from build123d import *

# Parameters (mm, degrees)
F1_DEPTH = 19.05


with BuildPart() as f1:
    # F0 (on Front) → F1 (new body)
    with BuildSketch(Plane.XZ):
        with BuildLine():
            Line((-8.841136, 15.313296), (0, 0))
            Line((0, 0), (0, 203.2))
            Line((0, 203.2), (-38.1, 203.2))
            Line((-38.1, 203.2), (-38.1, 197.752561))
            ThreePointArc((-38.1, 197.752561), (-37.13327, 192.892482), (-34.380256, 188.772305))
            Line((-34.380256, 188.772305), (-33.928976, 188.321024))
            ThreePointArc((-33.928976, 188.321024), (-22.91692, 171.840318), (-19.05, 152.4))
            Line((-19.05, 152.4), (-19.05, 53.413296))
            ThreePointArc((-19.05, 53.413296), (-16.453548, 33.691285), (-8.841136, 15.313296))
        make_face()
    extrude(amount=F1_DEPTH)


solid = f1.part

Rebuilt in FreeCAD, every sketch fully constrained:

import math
import FreeCAD as App
import Part
import Sketcher

V = App.Vector
Q = App.Units.Quantity

doc = App.newDocument("Part")
body = doc.addObject("PartDesign::Body", "Body")

sketch1 = body.newObject("Sketcher::SketchObject", "Sketch")
sketch1.AttachmentSupport = (doc.getObject("XZ_Plane"), [""])
sketch1.MapMode = "FlatFace"
sketch1.addGeometry([
    Part.LineSegment(V(-8.841136, 15.313296, 0), V(0, 0, 0)),
    Part.LineSegment(V(0, 0, 0), V(0, 203.2, 0)),
    Part.LineSegment(V(0, 203.2, 0), V(-38.1, 203.2, 0)),
    Part.LineSegment(V(-38.1, 203.2, 0), V(-38.1, 197.752561, 0)),
    Part.ArcOfCircle(Part.Circle(V(-25.399998, 197.752562, 0), V(0, 0, 1), 12.700002), math.radians(-179.999995), math.radians(-135.000004)),
    Part.LineSegment(V(-34.380256, 188.772305, 0), V(-33.928976, 188.321024, 0)),
    Part.ArcOfCircle(Part.Circle(V(-69.85, 152.399999, 0), V(0, 0, 1), 50.8), math.radians(0.000001), math.radians(45.000001)),
    Part.LineSegment(V(-19.05, 152.4, 0), V(-19.05, 53.413296, 0)),
    Part.ArcOfCircle(Part.Circle(V(57.150004, 53.413297, 0), V(0, 0, 1), 76.200004), math.radians(-180), math.radians(-150.000001)),
], False)
sketch1.addConstraint([
    Sketcher.Constraint("Coincident", 0, 2, 1, 1),
    Sketcher.Constraint("Coincident", 1, 2, 2, 1),
    Sketcher.Constraint("Coincident", 2, 2, 3, 1),
    Sketcher.Constraint("Coincident", 3, 2, 4, 1),
    Sketcher.Constraint("Coincident", 4, 2, 5, 1),
    Sketcher.Constraint("Coincident", 5, 2, 6, 2),
    Sketcher.Constraint("Coincident", 6, 1, 7, 1),
    Sketcher.Constraint("Coincident", 7, 2, 8, 1),
    Sketcher.Constraint("Coincident", 8, 2, 0, 1),
    Sketcher.Constraint("Vertical", 1),
    Sketcher.Constraint("Horizontal", 2),
    Sketcher.Constraint("Vertical", 3),
    Sketcher.Constraint("Vertical", 7),
    Sketcher.Constraint("Coincident", 0, 2, -1, 1),
    Sketcher.Constraint("Radius", 6, Q("2 in")),
    Sketcher.Constraint("Radius", 8, Q("3.0000001 in")),
    Sketcher.Constraint("Radius", 4, Q("0.5000001 in")),
    Sketcher.Constraint("DistanceY", 1, 1, 1, 2, Q("8 in")),
    Sketcher.Constraint("DistanceX", 2, 2, 2, 1, Q("1.5 in")),
    Sketcher.Constraint("DistanceY", -1, 1, 6, 3, Q("6 in")),
    Sketcher.Constraint("DistanceY", -1, 1, 6, 1, Q("6 in")),
    Sketcher.Constraint("DistanceY", 8, 2, 7, 2, Q("1.5 in")),
    Sketcher.Constraint("DistanceY", 8, 2, 8, 3, Q("1.5 in")),
    Sketcher.Constraint("DistanceX", 6, 3, -1, 1, Q("2.75 in")),
    Sketcher.Constraint("DistanceY", 3, 2, 3, 1, Q("5.447439 mm")),
    Sketcher.Constraint("Distance", 0, Q("17.682271 mm")),
    Sketcher.Constraint("DistanceX", 4, 2, 4, 3, Q("8.980258 mm")),
    Sketcher.Constraint("DistanceX", 4, 2, 5, 2, Q("0.45128 mm")),
    Sketcher.Constraint("DistanceY", 5, 2, 4, 2, Q("0.451281 mm")),
])
pad1 = body.newObject("PartDesign::Pad", "Pad")
pad1.Profile = sketch1
pad1.Length = Q("0.75 in")

doc.recompute()
